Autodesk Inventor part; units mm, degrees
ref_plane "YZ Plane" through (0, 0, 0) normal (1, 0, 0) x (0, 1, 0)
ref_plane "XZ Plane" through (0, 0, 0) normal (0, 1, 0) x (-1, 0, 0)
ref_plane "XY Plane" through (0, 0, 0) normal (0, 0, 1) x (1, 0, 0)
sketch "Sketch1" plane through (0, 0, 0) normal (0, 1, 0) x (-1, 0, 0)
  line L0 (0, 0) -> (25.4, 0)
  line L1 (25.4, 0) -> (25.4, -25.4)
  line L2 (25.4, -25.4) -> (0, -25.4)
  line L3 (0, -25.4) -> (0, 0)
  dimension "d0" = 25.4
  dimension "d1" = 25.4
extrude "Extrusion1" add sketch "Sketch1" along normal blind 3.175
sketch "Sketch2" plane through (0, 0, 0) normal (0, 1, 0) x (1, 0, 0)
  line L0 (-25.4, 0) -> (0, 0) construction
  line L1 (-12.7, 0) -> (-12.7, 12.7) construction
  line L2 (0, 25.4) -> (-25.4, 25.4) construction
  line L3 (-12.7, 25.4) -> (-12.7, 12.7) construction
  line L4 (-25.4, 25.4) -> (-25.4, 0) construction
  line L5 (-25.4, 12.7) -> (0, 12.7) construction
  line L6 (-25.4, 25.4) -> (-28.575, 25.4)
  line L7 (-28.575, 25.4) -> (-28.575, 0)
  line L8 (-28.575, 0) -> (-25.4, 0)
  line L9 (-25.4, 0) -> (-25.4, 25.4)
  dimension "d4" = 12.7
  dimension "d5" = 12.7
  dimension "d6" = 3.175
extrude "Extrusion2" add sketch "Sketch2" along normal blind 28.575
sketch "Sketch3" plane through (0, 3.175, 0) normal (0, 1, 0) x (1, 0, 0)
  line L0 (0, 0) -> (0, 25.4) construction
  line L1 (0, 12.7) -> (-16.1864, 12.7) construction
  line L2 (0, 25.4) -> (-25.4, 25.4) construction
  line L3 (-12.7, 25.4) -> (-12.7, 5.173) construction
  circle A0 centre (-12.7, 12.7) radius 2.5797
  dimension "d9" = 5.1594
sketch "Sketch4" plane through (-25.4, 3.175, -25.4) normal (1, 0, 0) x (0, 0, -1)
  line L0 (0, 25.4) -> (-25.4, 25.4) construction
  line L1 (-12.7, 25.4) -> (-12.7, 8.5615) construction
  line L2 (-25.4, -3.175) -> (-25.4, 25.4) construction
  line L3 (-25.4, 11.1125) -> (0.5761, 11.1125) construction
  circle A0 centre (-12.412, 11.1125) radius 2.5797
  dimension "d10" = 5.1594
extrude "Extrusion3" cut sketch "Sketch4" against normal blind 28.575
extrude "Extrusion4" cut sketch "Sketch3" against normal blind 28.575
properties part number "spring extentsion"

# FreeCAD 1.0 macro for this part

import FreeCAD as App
import Part
import Sketcher
from FreeCAD import Vector
Q = App.Units.Quantity

doc = App.newDocument("Part")
params = doc.addObject("Spreadsheet::Sheet", "Params")
for row, (alias, value) in enumerate([
    ("sketch1_width", "1 in"),
    ("pad1_length", "0.125 in"),
    ("sketch2_width", "0.125 in"),
    ("sketch2_height", "1 in"),
    ("pad2_length", "1.125 in"),
    ("sketch3_diameter", "0.203126 in"),
    ("pocket1_length", "1.125 in"),
    ("sketch4_diameter", "0.203126 in"),
    ("pocket2_length", "1.125 in"),
], start=1):
    params.set(f"A{row}", alias)
    params.set(f"B{row}", "=" + value)
    params.setAlias(f"B{row}", alias)

body = doc.addObject("PartDesign::Body", "Body")

sketch1 = body.newObject("Sketcher::SketchObject", "Sketch")
sketch1.AttachmentSupport = (doc.getObject("XZ_Plane"), [""])
sketch1.MapMode = "FlatFace"
sketch1.addGeometry([
    Part.LineSegment(Vector(-25.4, 0, 0), Vector(0, 0, 0)),
    Part.LineSegment(Vector(0, 0, 0), Vector(0, -25.4, 0)),
    Part.LineSegment(Vector(0, -25.4, 0), Vector(-25.4, -25.4, 0)),
    Part.LineSegment(Vector(-25.4, -25.4, 0), Vector(-25.4, 0, 0)),
], False)
sketch1.addConstraint([
    Sketcher.Constraint("Coincident", 0, 2, 1, 1),
    Sketcher.Constraint("Coincident", 1, 2, 2, 1),
    Sketcher.Constraint("Coincident", 2, 2, 3, 1),
    Sketcher.Constraint("Coincident", 3, 2, 0, 1),
    Sketcher.Constraint("Horizontal", 0),
    Sketcher.Constraint("Vertical", 1),
    Sketcher.Constraint("Horizontal", 2),
    Sketcher.Constraint("Vertical", 3),
    Sketcher.Constraint("Coincident", 0, 2, -1, 1),
    Sketcher.Constraint("Equal", 2, 1),
    Sketcher.Constraint("DistanceX", 0, 1, 0, 2, Q("1 in")),
])
sketch1.setExpression("Constraints[10]", "Params.sketch1_width")
pad1 = body.newObject("PartDesign::Pad", "Pad")
pad1.Profile = sketch1
pad1.setExpression("Length", "Params.pad1_length")
pad1.Reversed = True

sketch2 = body.newObject("Sketcher::SketchObject", "Sketch001")
sketch2.AttachmentSupport = (doc.getObject("XZ_Plane"), [""])
sketch2.MapMode = "FlatFace"
sketch2.addGeometry([
    Part.LineSegment(Vector(-25.4, 0, 0), Vector(-25.4, -25.4, 0)),
    Part.LineSegment(Vector(-25.4, -25.4, 0), Vector(-28.575, -25.4, 0)),
    Part.LineSegment(Vector(-28.575, -25.4, 0), Vector(-28.575, 0, 0)),
    Part.LineSegment(Vector(-28.575, 0, 0), Vector(-25.4, 0, 0)),
], False)
sketch2.addConstraint([
    Sketcher.Constraint("Coincident", 0, 2, 1, 1),
    Sketcher.Constraint("Coincident", 1, 2, 2, 1),
    Sketcher.Constraint("Coincident", 2, 2, 3, 1),
    Sketcher.Constraint("Coincident", 3, 2, 0, 1),
    Sketcher.Constraint("Vertical", 0),
    Sketcher.Constraint("Horizontal", 1),
    Sketcher.Constraint("Vertical", 2),
    Sketcher.Constraint("Horizontal", 3),
    Sketcher.Constraint("PointOnObject", 2, 2, -1),
    Sketcher.Constraint("DistanceX", 1, 2, 1, 1, Q("0.125 in")),
    Sketcher.Constraint("DistanceY", 0, 2, 0, 1, Q("1 in")),
    Sketcher.Constraint("DistanceX", 0, 2, -1, 1, Q("1 in")),
])
sketch2.setExpression("Constraints[9]", "Params.sketch2_width")
sketch2.setExpression("Constraints[10]", "Params.sketch2_height")
pad2 = body.newObject("PartDesign::Pad", "Pad001")
pad2.Profile = sketch2
pad2.setExpression("Length", "Params.pad2_length")
pad2.Reversed = True

sketch3 = body.newObject("Sketcher::SketchObject", "Sketch002")
sketch3.AttachmentSupport = (doc.getObject("YZ_Plane"), [""])
sketch3.MapMode = "FlatFace"
sketch3.AttachmentOffset = App.Placement(Vector(0, 0, -1 * 25.4), App.Rotation())
sketch3.addGeometry(Part.Circle(Vector(14.2875, -12.988, 0), Vector(0, 0, 1), 2.5797), False)
sketch3.addConstraint([
    Sketcher.Constraint("Diameter", 0, Q("0.203126 in")),
    Sketcher.Constraint("DistanceX", -1, 1, 0, 3, Q("0.5625 in")),
    Sketcher.Constraint("DistanceY", 0, 3, -1, 1, 12.988),
])
sketch3.setExpression("Constraints[0]", "Params.sketch3_diameter")
pocket1 = body.newObject("PartDesign::Pocket", "Pocket")
pocket1.Profile = sketch3
pocket1.setExpression("Length", "Params.pocket1_length")

sketch4 = body.newObject("Sketcher::SketchObject", "Sketch003")
sketch4.AttachmentSupport = (doc.getObject("XZ_Plane"), [""])
sketch4.MapMode = "FlatFace"
sketch4.AttachmentOffset = App.Placement(Vector(0, 0, -0.125 * 25.4), App.Rotation())
sketch4.addGeometry(Part.Circle(Vector(-12.7, -12.7, 0), Vector(0, 0, 1), 2.5797), False)
sketch4.addConstraint([
    Sketcher.Constraint("Diameter", 0, Q("0.203126 in")),
    Sketcher.Constraint("DistanceX", 0, 3, -1, 1, Q("0.5 in")),
    Sketcher.Constraint("DistanceY", 0, 3, -1, 1, Q("0.5 in")),
])
sketch4.setExpression("Constraints[0]", "Params.sketch4_diameter")
pocket2 = body.newObject("PartDesign::Pocket", "Pocket001")
pocket2.Profile = sketch4
pocket2.setExpression("Length", "Params.pocket2_length")
pocket2.Reversed = True

doc.recompute()
